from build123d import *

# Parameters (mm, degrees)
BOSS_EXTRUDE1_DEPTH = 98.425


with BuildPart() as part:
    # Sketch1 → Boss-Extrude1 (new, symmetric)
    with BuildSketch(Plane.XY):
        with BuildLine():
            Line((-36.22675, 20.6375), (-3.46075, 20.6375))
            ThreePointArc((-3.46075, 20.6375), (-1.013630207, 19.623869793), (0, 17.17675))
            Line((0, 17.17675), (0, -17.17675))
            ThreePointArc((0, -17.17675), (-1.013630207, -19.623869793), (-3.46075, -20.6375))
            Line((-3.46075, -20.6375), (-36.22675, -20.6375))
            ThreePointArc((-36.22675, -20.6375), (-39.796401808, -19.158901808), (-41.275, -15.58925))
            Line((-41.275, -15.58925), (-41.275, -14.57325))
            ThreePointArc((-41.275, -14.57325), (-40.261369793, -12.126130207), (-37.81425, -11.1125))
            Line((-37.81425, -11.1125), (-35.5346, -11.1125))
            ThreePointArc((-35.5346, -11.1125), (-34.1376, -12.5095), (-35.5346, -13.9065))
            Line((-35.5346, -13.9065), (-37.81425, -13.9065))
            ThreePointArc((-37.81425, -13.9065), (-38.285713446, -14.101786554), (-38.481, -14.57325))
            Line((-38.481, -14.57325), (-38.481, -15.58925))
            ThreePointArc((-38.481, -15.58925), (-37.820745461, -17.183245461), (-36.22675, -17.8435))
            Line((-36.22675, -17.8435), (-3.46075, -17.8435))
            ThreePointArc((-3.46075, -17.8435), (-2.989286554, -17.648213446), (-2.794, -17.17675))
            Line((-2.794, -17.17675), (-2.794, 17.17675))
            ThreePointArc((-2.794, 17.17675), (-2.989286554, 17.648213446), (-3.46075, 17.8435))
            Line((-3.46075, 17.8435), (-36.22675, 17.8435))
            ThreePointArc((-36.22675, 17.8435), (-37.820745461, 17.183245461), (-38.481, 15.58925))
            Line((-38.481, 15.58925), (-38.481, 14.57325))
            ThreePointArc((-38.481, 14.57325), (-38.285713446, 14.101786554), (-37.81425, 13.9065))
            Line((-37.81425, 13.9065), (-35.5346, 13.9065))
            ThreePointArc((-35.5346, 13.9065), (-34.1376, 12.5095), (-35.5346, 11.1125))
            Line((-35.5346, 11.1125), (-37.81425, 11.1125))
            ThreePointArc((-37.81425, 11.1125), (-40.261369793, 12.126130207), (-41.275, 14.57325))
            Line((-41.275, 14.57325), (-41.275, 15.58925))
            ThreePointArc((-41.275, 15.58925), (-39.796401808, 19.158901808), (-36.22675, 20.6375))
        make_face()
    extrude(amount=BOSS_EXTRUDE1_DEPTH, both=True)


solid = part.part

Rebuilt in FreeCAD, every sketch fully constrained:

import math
import FreeCAD as App
import Part
import Sketcher
Q = App.Units.Quantity

doc = App.newDocument("Part")
body = doc.addObject("PartDesign::Body", "Body")

# Sketch on XY plane
sketch1 = body.newObject("Sketcher::SketchObject", "Sketch")
sketch1.AttachmentSupport = (doc.getObject("XY_Plane"), [""])
sketch1.MapMode = "FlatFace"
sketch1.addGeometry(Part.LineSegment(App.Vector(-3.46075, 20.6375, 0), App.Vector(-36.22675, 20.6375, 0)), False)
sketch1.addGeometry(Part.ArcOfCircle(Part.Circle(App.Vector(-36.22675, 15.58925, 0), App.Vector(0, 0, 1), 5.04825), math.radians(90), math.radians(180)), False)
sketch1.addGeometry(Part.LineSegment(App.Vector(-41.275, 15.58925, 0), App.Vector(-41.275, 14.57325, 0)), False)
sketch1.addGeometry(Part.ArcOfCircle(Part.Circle(App.Vector(-37.81425, 14.57325, 0), App.Vector(0, 0, 1), 3.46075), math.radians(180), math.radians(270)), False)
sketch1.addGeometry(Part.LineSegment(App.Vector(-37.81425, 11.1125, 0), App.Vector(-35.5346, 11.1125, 0)), False)
sketch1.addGeometry(Part.ArcOfCircle(Part.Circle(App.Vector(-35.5346, 12.5095, 0), App.Vector(0, 0, 1), 1.397), math.radians(-90), math.radians(90)), False)
sketch1.addGeometry(Part.LineSegment(App.Vector(-35.5346, 13.9065, 0), App.Vector(-37.81425, 13.9065, 0)), False)
sketch1.addGeometry(Part.ArcOfCircle(Part.Circle(App.Vector(-37.81425, 14.57325, 0), App.Vector(0, 0, 1), 0.66675), math.radians(-180), math.radians(-90)), False)
sketch1.addGeometry(Part.LineSegment(App.Vector(-38.481, 14.57325, 0), App.Vector(-38.481, 15.58925, 0)), False)
sketch1.addGeometry(Part.ArcOfCircle(Part.Circle(App.Vector(-36.22675, 15.58925, 0), App.Vector(0, 0, 1), 2.25425), math.radians(90), math.radians(180)), False)
sketch1.addGeometry(Part.LineSegment(App.Vector(-36.22675, 17.8435, 0), App.Vector(-3.46075, 17.8435, 0)), False)
sketch1.addGeometry(Part.ArcOfCircle(Part.Circle(App.Vector(-3.46075, 17.17675, 0), App.Vector(0, 0, 1), 0.66675), math.radians(0), math.radians(90)), False)
sketch1.addGeometry(Part.LineSegment(App.Vector(-2.794, 17.17675, 0), App.Vector(-2.794, -17.17675, 0)), False)
sketch1.addGeometry(Part.ArcOfCircle(Part.Circle(App.Vector(-3.46075, -17.17675, 0), App.Vector(0, 0, 1), 0.66675), math.radians(-90), math.radians(0)), False)
sketch1.addGeometry(Part.LineSegment(App.Vector(-3.46075, -17.8435, 0), App.Vector(-36.22675, -17.8435, 0)), False)
sketch1.addGeometry(Part.ArcOfCircle(Part.Circle(App.Vector(-36.22675, -15.58925, 0), App.Vector(0, 0, 1), 2.25425), math.radians(-180), math.radians(-90)), False)
sketch1.addGeometry(Part.LineSegment(App.Vector(-38.481, -15.58925, 0), App.Vector(-38.481, -14.57325, 0)), False)
sketch1.addGeometry(Part.ArcOfCircle(Part.Circle(App.Vector(-37.81425, -14.57325, 0), App.Vector(0, 0, 1), 0.66675), math.radians(90), math.radians(180)), False)
sketch1.addGeometry(Part.LineSegment(App.Vector(-37.81425, -13.9065, 0), App.Vector(-35.5346, -13.9065, 0)), False)
sketch1.addGeometry(Part.ArcOfCircle(Part.Circle(App.Vector(-35.5346, -12.5095, 0), App.Vector(0, 0, 1), 1.397), math.radians(-90), math.radians(90)), False)
sketch1.addGeometry(Part.LineSegment(App.Vector(-35.5346, -11.1125, 0), App.Vector(-37.81425, -11.1125, 0)), False)
sketch1.addGeometry(Part.ArcOfCircle(Part.Circle(App.Vector(-37.81425, -14.57325, 0), App.Vector(0, 0, 1), 3.46075), math.radians(90), math.radians(180)), False)
sketch1.addGeometry(Part.LineSegment(App.Vector(-41.275, -14.57325, 0), App.Vector(-41.275, -15.58925, 0)), False)
sketch1.addGeometry(Part.ArcOfCircle(Part.Circle(App.Vector(-36.22675, -15.58925, 0), App.Vector(0, 0, 1), 5.04825), math.radians(180), math.radians(270)), False)
sketch1.addGeometry(Part.LineSegment(App.Vector(-36.22675, -20.6375, 0), App.Vector(-3.46075, -20.6375, 0)), False)
sketch1.addGeometry(Part.ArcOfCircle(Part.Circle(App.Vector(-3.46075, -17.17675, 0), App.Vector(0, 0, 1), 3.46075), math.radians(-90), math.radians(0)), False)
sketch1.addGeometry(Part.LineSegment(App.Vector(0, -17.17675, 0), App.Vector(0, 17.17675, 0)), False)
sketch1.addGeometry(Part.ArcOfCircle(Part.Circle(App.Vector(-3.46075, 17.17675, 0), App.Vector(0, 0, 1), 3.46075), math.radians(0), math.radians(90)), False)
sketch1.addConstraint(Sketcher.Constraint("Tangent", 0, 2, 1, 1))
sketch1.addConstraint(Sketcher.Constraint("Tangent", 1, 2, 2, 1))
sketch1.addConstraint(Sketcher.Constraint("Tangent", 2, 2, 3, 1))
sketch1.addConstraint(Sketcher.Constraint("Tangent", 3, 2, 4, 1))
sketch1.addConstraint(Sketcher.Constraint("Tangent", 4, 2, 5, 1))
sketch1.addConstraint(Sketcher.Constraint("Tangent", 5, 2, 6, 1))
sketch1.addConstraint(Sketcher.Constraint("Tangent", 6, 2, 7, 2))
sketch1.addConstraint(Sketcher.Constraint("Tangent", 7, 1, 8, 1))
sketch1.addConstraint(Sketcher.Constraint("Tangent", 8, 2, 9, 2))
sketch1.addConstraint(Sketcher.Constraint("Tangent", 9, 1, 10, 1))
sketch1.addConstraint(Sketcher.Constraint("Tangent", 10, 2, 11, 2))
sketch1.addConstraint(Sketcher.Constraint("Tangent", 11, 1, 12, 1))
sketch1.addConstraint(Sketcher.Constraint("Tangent", 12, 2, 13, 2))
sketch1.addConstraint(Sketcher.Constraint("Tangent", 13, 1, 14, 1))
sketch1.addConstraint(Sketcher.Constraint("Tangent", 14, 2, 15, 2))
sketch1.addConstraint(Sketcher.Constraint("Tangent", 15, 1, 16, 1))
sketch1.addConstraint(Sketcher.Constraint("Tangent", 16, 2, 17, 2))
sketch1.addConstraint(Sketcher.Constraint("Tangent", 17, 1, 18, 1))
sketch1.addConstraint(Sketcher.Constraint("Tangent", 18, 2, 19, 1))
sketch1.addConstraint(Sketcher.Constraint("Tangent", 19, 2, 20, 1))
sketch1.addConstraint(Sketcher.Constraint("Tangent", 20, 2, 21, 1))
sketch1.addConstraint(Sketcher.Constraint("Tangent", 21, 2, 22, 1))
sketch1.addConstraint(Sketcher.Constraint("Tangent", 22, 2, 23, 1))
sketch1.addConstraint(Sketcher.Constraint("Tangent", 23, 2, 24, 1))
sketch1.addConstraint(Sketcher.Constraint("Tangent", 24, 2, 25, 1))
sketch1.addConstraint(Sketcher.Constraint("Tangent", 25, 2, 26, 1))
sketch1.addConstraint(Sketcher.Constraint("Tangent", 26, 2, 27, 1))
sketch1.addConstraint(Sketcher.Constraint("Tangent", 27, 2, 0, 1))
sketch1.addConstraint(Sketcher.Constraint("Horizontal", 0))
sketch1.addConstraint(Sketcher.Constraint("Vertical", 2))
sketch1.addConstraint(Sketcher.Constraint("Horizontal", 4))
sketch1.addConstraint(Sketcher.Constraint("Horizontal", 6))
sketch1.addConstraint(Sketcher.Constraint("Vertical", 8))
sketch1.addConstraint(Sketcher.Constraint("Horizontal", 10))
sketch1.addConstraint(Sketcher.Constraint("Vertical", 12))
sketch1.addConstraint(Sketcher.Constraint("Horizontal", 14))
sketch1.addConstraint(Sketcher.Constraint("Vertical", 16))
sketch1.addConstraint(Sketcher.Constraint("Horizontal", 18))
sketch1.addConstraint(Sketcher.Constraint("Horizontal", 20))
sketch1.addConstraint(Sketcher.Constraint("Vertical", 22))
sketch1.addConstraint(Sketcher.Constraint("Horizontal", 24))
sketch1.addConstraint(Sketcher.Constraint("Vertical", 26))
sketch1.addConstraint(Sketcher.Constraint("Coincident", 7, 3, 3, 3))
sketch1.addConstraint(Sketcher.Constraint("Coincident", 9, 3, 1, 3))
sketch1.addConstraint(Sketcher.Constraint("Coincident", 21, 3, 17, 3))
sketch1.addConstraint(Sketcher.Constraint("Coincident", 23, 3, 15, 3))
sketch1.addConstraint(Sketcher.Constraint("Coincident", 25, 3, 13, 3))
sketch1.addConstraint(Sketcher.Constraint("Coincident", 27, 3, 11, 3))
sketch1.addConstraint(Sketcher.Constraint("Equal", 7, 11))
sketch1.addConstraint(Sketcher.Constraint("Equal", 11, 13))
sketch1.addConstraint(Sketcher.Constraint("Equal", 9, 15))
sketch1.addConstraint(Sketcher.Constraint("Equal", 13, 17))
sketch1.addConstraint(Sketcher.Constraint("Symmetric", 25, 2, 26, 2, -1, 1))
sketch1.addConstraint(Sketcher.Constraint("Symmetric", 3, 3, 17, 3, -1))
sketch1.addConstraint(Sketcher.Constraint("Vertical", 5, 3, 19, 3))
sketch1.addConstraint(Sketcher.Constraint("Radius", 5, Q("0.055 in")))
sketch1.addConstraint(Sketcher.Constraint("DistanceX", 0, 2, 0, 1, Q("1.29 in")))
sketch1.addConstraint(Sketcher.Constraint("DistanceY", 2, 2, 2, 1, Q("0.04 in")))
sketch1.addConstraint(Sketcher.Constraint("DistanceY", 13, 3, 9, 3, Q("1.29 in")))
sketch1.addConstraint(Sketcher.Constraint("DistanceY", 5, 3, 0, 2, Q("0.32 in")))
sketch1.addConstraint(Sketcher.Constraint("DistanceY", 12, 2, 12, 1, Q("1.3525 in")))
sketch1.addConstraint(Sketcher.Constraint("DistanceX", 5, 3, -1, 1, Q("1.399 in")))
pad1 = body.newObject("PartDesign::Pad", "Pad")
pad1.Profile = sketch1
pad1.Length = Q("7.75 in")
pad1.Midplane = True

doc.recompute()
